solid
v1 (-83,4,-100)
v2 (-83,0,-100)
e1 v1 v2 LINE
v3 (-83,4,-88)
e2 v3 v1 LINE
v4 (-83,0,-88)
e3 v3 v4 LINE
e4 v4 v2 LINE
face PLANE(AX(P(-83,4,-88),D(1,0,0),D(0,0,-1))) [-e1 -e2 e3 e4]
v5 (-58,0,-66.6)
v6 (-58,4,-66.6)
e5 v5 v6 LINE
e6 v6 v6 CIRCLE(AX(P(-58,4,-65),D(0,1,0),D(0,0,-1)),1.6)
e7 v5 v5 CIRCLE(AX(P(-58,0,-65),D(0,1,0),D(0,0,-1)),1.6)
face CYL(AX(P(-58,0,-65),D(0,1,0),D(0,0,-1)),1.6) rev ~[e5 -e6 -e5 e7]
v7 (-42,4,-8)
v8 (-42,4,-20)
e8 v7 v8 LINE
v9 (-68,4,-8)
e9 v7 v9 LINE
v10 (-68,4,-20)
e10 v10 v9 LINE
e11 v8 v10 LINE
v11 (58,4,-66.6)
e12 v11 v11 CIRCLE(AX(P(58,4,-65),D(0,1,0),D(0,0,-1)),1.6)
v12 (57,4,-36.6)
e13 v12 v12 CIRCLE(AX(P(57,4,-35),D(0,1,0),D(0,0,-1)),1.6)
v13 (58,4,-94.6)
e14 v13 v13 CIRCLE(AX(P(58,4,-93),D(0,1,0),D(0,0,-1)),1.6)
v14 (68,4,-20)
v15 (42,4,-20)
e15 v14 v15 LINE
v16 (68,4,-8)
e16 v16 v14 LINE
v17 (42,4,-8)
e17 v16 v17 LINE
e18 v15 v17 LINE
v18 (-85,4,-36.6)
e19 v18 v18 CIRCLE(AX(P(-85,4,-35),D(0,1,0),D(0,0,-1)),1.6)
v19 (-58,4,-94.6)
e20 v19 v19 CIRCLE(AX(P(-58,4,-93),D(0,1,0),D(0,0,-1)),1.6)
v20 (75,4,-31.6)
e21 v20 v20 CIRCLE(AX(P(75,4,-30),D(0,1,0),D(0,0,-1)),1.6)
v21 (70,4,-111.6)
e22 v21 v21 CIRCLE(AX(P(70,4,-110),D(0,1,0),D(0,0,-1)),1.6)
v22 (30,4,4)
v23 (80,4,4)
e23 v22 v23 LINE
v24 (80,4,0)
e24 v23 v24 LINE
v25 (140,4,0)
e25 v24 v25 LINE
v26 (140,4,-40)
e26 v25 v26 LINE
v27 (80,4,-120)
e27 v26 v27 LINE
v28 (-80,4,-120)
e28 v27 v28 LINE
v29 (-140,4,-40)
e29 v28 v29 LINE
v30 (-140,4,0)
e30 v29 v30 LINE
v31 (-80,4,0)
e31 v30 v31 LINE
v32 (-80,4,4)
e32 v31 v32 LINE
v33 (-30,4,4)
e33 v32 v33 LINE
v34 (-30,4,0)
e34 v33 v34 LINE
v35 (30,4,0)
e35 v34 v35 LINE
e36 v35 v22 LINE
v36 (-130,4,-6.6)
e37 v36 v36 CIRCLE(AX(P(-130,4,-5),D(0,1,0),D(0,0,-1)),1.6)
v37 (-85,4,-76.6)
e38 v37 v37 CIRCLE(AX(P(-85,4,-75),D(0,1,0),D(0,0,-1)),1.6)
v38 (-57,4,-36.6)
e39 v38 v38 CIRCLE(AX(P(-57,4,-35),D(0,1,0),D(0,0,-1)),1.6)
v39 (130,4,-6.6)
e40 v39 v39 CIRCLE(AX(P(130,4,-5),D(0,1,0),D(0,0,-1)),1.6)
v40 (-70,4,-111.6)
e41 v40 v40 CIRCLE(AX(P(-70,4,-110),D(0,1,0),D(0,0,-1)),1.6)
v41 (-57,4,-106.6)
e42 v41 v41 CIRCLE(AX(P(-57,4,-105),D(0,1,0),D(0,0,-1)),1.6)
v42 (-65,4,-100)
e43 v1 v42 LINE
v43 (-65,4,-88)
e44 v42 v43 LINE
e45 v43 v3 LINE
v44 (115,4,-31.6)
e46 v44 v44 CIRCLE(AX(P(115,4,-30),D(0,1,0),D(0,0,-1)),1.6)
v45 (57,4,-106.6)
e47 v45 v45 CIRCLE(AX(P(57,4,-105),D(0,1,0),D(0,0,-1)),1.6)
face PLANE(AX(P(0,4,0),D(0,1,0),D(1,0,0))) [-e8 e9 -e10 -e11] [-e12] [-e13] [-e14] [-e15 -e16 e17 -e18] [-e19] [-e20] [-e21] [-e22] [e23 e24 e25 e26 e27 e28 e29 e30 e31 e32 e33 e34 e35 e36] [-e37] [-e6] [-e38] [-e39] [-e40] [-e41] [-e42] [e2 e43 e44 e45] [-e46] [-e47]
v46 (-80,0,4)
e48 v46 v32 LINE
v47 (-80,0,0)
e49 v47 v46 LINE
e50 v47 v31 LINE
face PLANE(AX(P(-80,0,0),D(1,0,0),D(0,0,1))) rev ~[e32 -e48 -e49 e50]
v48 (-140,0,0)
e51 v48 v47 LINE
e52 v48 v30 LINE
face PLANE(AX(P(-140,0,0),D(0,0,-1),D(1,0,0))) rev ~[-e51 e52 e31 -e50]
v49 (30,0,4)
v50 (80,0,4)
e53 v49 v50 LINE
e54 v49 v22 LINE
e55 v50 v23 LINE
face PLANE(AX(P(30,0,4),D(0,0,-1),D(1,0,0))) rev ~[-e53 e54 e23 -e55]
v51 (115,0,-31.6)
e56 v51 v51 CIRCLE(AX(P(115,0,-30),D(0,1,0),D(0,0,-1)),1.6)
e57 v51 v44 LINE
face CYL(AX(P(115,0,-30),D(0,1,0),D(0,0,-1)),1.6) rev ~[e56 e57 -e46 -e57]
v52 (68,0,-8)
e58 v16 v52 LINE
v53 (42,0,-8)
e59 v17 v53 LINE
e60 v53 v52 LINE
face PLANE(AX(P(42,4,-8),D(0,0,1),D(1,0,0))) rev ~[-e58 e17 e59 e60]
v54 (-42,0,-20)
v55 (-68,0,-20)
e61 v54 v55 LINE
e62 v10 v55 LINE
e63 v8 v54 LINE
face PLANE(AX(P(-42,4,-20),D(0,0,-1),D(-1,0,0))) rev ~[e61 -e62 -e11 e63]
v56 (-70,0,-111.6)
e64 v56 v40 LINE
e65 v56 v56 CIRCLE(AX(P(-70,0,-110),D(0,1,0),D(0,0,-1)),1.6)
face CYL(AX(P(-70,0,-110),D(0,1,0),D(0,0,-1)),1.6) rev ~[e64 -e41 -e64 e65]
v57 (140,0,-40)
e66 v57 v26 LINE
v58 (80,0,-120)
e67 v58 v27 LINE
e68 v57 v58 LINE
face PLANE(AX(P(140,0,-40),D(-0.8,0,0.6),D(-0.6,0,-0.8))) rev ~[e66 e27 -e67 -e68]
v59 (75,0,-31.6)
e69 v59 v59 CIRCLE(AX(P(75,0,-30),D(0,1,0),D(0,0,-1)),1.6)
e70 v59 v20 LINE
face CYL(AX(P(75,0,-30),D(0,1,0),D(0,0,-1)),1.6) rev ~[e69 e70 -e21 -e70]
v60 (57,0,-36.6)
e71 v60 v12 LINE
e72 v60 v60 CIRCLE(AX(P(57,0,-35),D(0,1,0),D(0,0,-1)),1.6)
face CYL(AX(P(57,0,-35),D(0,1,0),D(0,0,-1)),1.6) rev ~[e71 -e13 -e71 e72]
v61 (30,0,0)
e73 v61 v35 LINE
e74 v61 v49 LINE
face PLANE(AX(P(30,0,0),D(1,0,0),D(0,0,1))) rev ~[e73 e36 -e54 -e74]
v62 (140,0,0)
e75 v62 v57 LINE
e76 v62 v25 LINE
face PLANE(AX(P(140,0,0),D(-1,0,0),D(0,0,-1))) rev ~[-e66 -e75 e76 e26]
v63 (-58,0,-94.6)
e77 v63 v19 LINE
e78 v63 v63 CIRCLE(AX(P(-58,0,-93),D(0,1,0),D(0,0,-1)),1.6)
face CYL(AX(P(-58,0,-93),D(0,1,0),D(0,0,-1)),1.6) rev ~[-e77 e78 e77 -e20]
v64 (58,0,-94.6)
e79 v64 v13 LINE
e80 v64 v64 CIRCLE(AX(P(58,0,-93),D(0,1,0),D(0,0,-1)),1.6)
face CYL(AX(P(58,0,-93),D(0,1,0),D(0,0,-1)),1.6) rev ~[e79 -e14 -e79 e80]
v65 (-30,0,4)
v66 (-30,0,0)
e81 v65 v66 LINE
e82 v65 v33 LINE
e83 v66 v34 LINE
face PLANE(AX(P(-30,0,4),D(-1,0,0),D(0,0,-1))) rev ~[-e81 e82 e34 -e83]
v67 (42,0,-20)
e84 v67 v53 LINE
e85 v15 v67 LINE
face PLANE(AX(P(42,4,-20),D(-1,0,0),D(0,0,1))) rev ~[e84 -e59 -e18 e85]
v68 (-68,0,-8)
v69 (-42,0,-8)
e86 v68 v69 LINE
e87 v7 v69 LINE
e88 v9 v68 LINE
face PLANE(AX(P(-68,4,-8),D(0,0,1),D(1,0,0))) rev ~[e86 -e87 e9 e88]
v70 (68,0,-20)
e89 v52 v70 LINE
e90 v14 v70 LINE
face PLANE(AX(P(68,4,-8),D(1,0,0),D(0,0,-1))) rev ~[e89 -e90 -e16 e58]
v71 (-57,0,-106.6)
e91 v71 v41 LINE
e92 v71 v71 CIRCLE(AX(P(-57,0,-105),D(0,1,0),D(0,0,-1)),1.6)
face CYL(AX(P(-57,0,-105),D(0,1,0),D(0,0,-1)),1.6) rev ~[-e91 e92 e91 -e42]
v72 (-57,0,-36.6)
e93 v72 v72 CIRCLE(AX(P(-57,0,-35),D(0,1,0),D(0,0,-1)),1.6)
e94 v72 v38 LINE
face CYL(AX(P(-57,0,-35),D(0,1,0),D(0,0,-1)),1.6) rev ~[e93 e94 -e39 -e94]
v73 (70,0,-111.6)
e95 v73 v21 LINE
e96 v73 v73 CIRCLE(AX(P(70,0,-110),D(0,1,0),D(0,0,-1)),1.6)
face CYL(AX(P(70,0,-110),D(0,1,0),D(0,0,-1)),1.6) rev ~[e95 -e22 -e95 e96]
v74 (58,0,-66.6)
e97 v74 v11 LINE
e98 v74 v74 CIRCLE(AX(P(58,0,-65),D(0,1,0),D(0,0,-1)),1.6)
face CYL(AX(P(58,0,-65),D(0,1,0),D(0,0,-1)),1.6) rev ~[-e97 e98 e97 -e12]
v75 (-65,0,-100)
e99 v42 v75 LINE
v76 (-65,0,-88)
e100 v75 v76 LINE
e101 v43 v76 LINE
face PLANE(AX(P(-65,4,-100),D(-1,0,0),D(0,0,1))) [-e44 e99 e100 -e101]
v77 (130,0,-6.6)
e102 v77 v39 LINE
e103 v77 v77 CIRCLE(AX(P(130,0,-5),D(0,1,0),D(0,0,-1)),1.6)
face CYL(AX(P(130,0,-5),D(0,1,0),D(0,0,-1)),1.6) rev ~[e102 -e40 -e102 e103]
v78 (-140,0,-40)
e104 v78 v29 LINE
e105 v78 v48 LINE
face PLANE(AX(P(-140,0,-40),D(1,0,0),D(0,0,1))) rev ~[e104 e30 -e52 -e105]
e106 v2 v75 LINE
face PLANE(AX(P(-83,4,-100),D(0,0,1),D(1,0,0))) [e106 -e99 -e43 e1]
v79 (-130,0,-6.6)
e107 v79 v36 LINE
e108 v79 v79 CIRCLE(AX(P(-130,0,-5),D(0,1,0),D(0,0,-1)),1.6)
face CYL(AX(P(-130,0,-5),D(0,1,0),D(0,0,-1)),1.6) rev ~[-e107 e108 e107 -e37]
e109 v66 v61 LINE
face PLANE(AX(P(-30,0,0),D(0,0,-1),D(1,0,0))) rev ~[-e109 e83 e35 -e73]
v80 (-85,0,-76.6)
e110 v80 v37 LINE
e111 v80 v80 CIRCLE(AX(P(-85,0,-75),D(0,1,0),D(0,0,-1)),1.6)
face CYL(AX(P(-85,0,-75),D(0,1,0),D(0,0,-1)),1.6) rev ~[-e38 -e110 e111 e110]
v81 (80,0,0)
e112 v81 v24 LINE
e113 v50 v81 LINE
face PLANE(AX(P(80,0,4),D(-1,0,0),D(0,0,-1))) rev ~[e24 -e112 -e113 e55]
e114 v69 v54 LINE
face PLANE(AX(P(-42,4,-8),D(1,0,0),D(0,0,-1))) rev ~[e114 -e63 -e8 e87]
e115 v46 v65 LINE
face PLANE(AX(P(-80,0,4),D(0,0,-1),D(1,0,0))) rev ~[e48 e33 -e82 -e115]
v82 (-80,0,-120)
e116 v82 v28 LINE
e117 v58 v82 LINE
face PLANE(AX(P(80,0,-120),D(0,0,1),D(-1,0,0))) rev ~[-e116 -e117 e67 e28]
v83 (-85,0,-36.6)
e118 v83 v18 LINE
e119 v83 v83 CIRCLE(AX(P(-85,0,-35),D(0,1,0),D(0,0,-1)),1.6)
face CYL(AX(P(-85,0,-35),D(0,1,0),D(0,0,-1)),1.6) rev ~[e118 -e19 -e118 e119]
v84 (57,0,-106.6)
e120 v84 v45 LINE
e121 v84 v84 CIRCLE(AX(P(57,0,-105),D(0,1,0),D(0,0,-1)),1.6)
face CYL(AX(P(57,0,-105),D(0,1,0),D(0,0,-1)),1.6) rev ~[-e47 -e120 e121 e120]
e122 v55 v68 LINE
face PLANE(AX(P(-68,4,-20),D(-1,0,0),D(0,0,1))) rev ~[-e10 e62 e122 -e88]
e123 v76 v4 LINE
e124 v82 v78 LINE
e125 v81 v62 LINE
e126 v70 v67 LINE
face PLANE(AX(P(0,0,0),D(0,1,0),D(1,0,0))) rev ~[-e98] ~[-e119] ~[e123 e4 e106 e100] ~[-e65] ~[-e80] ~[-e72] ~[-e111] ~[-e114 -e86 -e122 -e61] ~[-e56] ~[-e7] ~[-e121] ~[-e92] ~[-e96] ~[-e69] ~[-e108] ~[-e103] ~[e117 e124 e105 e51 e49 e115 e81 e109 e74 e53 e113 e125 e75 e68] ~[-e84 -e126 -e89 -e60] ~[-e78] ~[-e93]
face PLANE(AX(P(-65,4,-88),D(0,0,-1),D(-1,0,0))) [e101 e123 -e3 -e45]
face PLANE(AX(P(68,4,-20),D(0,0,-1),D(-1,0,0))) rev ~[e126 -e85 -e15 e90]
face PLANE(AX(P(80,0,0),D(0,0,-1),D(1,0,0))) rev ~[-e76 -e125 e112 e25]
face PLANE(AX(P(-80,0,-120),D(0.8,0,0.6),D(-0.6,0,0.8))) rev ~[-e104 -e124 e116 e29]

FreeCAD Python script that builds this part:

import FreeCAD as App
import Part
import Sketcher

doc = App.newDocument("Part")
body = doc.addObject("PartDesign::Body", "Body")

# Sketch on XZ plane
sketch1 = body.newObject("Sketcher::SketchObject", "Sketch")
sketch1.AttachmentSupport = (doc.getObject("XZ_Plane"), [""])
sketch1.MapMode = "FlatFace"
sketch1.addGeometry(Part.LineSegment(App.Vector(-140, -40, 0), App.Vector(-140, 0, 0)), False)
sketch1.addGeometry(Part.LineSegment(App.Vector(-140, 0, 0), App.Vector(-80, 0, 0)), False)
sketch1.addGeometry(Part.LineSegment(App.Vector(-80, 0, 0), App.Vector(-80, 4, 0)), False)
sketch1.addGeometry(Part.LineSegment(App.Vector(-80, 4, 0), App.Vector(-30, 4, 0)), False)
sketch1.addGeometry(Part.LineSegment(App.Vector(-30, 4, 0), App.Vector(-30, 0, 0)), False)
sketch1.addGeometry(Part.LineSegment(App.Vector(-30, 0, 0), App.Vector(30, 0, 0)), False)
sketch1.addGeometry(Part.LineSegment(App.Vector(30, 0, 0), App.Vector(30, 4, 0)), False)
sketch1.addGeometry(Part.LineSegment(App.Vector(30, 4, 0), App.Vector(80, 4, 0)), False)
sketch1.addGeometry(Part.LineSegment(App.Vector(80, 4, 0), App.Vector(80, 0, 0)), False)
sketch1.addGeometry(Part.LineSegment(App.Vector(80, 0, 0), App.Vector(140, 0, 0)), False)
sketch1.addGeometry(Part.LineSegment(App.Vector(140, 0, 0), App.Vector(140, -40, 0)), False)
sketch1.addGeometry(Part.LineSegment(App.Vector(140, -40, 0), App.Vector(80, -120, 0)), False)
sketch1.addGeometry(Part.LineSegment(App.Vector(80, -120, 0), App.Vector(-80, -120, 0)), False)
sketch1.addGeometry(Part.LineSegment(App.Vector(-80, -120, 0), App.Vector(-140, -40, 0)), False)
sketch1.addConstraint(Sketcher.Constraint("Coincident", 0, 2, 1, 1))
sketch1.addConstraint(Sketcher.Constraint("Coincident", 1, 2, 2, 1))
sketch1.addConstraint(Sketcher.Constraint("Coincident", 2, 2, 3, 1))
sketch1.addConstraint(Sketcher.Constraint("Coincident", 3, 2, 4, 1))
sketch1.addConstraint(Sketcher.Constraint("Coincident", 4, 2, 5, 1))
sketch1.addConstraint(Sketcher.Constraint("Coincident", 5, 2, 6, 1))
sketch1.addConstraint(Sketcher.Constraint("Coincident", 6, 2, 7, 1))
sketch1.addConstraint(Sketcher.Constraint("Coincident", 7, 2, 8, 1))
sketch1.addConstraint(Sketcher.Constraint("Coincident", 8, 2, 9, 1))
sketch1.addConstraint(Sketcher.Constraint("Coincident", 9, 2, 10, 1))
sketch1.addConstraint(Sketcher.Constraint("Coincident", 10, 2, 11, 1))
sketch1.addConstraint(Sketcher.Constraint("Coincident", 11, 2, 12, 1))
sketch1.addConstraint(Sketcher.Constraint("Coincident", 12, 2, 13, 1))
sketch1.addConstraint(Sketcher.Constraint("Coincident", 13, 2, 0, 1))
sketch1.addConstraint(Sketcher.Constraint("Vertical", 0))
sketch1.addConstraint(Sketcher.Constraint("Horizontal", 1))
sketch1.addConstraint(Sketcher.Constraint("Vertical", 2))
sketch1.addConstraint(Sketcher.Constraint("Horizontal", 3))
sketch1.addConstraint(Sketcher.Constraint("Vertical", 4))
sketch1.addConstraint(Sketcher.Constraint("Horizontal", 5))
sketch1.addConstraint(Sketcher.Constraint("Vertical", 6))
sketch1.addConstraint(Sketcher.Constraint("Horizontal", 7))
sketch1.addConstraint(Sketcher.Constraint("Vertical", 8))
sketch1.addConstraint(Sketcher.Constraint("Horizontal", 9))
sketch1.addConstraint(Sketcher.Constraint("Vertical", 10))
sketch1.addConstraint(Sketcher.Constraint("Horizontal", 12))
sketch1.addConstraint(Sketcher.Constraint("Symmetric", 4, 2, 5, 2, -1, 1))
sketch1.addConstraint(Sketcher.Constraint("Symmetric", 1, 2, 8, 2, -1, 1))
sketch1.addConstraint(Sketcher.Constraint("Symmetric", 0, 2, 9, 2, -2))
sketch1.addConstraint(Sketcher.Constraint("Horizontal", 3, 2, 6, 2))
sketch1.addConstraint(Sketcher.Constraint("Horizontal", 10, 2, 13, 2))
sketch1.addConstraint(Sketcher.Constraint("Vertical", 8, 2, 11, 2))
sketch1.addConstraint(Sketcher.Constraint("Vertical", 2, 2, 12, 2))
sketch1.addConstraint(Sketcher.Constraint("Equal", 1, 5))
sketch1.addConstraint(Sketcher.Constraint("DistanceX", 1, 1, 1, 2, 60.0))
sketch1.addConstraint(Sketcher.Constraint("DistanceX", 3, 1, 3, 2, 50.0))
sketch1.addConstraint(Sketcher.Constraint("DistanceY", 0, 1, 0, 2, 40.0))
sketch1.addConstraint(Sketcher.Constraint("DistanceY", 2, 1, 2, 2, 4.0))
sketch1.addConstraint(Sketcher.Constraint("DistanceY", 11, 2, 10, 2, 80.0))
pad1 = body.newObject("PartDesign::Pad", "Pad")
pad1.Profile = sketch1
pad1.Length = 4
pad1.Reversed = True

# Sketch on XZ plane
sketch2 = body.newObject("Sketcher::SketchObject", "Sketch001")
sketch2.AttachmentSupport = (doc.getObject("XZ_Plane"), [""])
sketch2.MapMode = "FlatFace"
sketch2.addGeometry(Part.Circle(App.Vector(57, -105, 0), App.Vector(0, 0, 1), 1.6), False)
sketch2.addGeometry(Part.Circle(App.Vector(-57, -105, 0), App.Vector(0, 0, 1), 1.6), False)
sketch2.addGeometry(Part.Circle(App.Vector(-85, -75, 0), App.Vector(0, 0, 1), 1.6), False)
sketch2.addGeometry(Part.Circle(App.Vector(-85, -35, 0), App.Vector(0, 0, 1), 1.6), False)
sketch2.addGeometry(Part.Circle(App.Vector(75, -30, 0), App.Vector(0, 0, 1), 1.6), False)
sketch2.addGeometry(Part.Circle(App.Vector(115, -30, 0), App.Vector(0, 0, 1), 1.6), False)
sketch2.addGeometry(Part.Circle(App.Vector(-70, -110, 0), App.Vector(0, 0, 1), 1.6), False)
sketch2.addGeometry(Part.Circle(App.Vector(70, -110, 0), App.Vector(0, 0, 1), 1.6), False)
sketch2.addGeometry(Part.Circle(App.Vector(-130, -5, 0), App.Vector(0, 0, 1), 1.6), False)
sketch2.addGeometry(Part.Circle(App.Vector(130, -5, 0), App.Vector(0, 0, 1), 1.6), False)
sketch2.addGeometry(Part.Circle(App.Vector(-57, -35, 0), App.Vector(0, 0, 1), 1.6), False)
sketch2.addGeometry(Part.Circle(App.Vector(57, -35, 0), App.Vector(0, 0, 1), 1.6), False)
sketch2.addGeometry(Part.Circle(App.Vector(-58, -93, 0), App.Vector(0, 0, 1), 1.6), False)
sketch2.addGeometry(Part.Circle(App.Vector(-58, -65, 0), App.Vector(0, 0, 1), 1.6), False)
sketch2.addGeometry(Part.Circle(App.Vector(58, -93, 0), App.Vector(0, 0, 1), 1.6), False)
sketch2.addGeometry(Part.Circle(App.Vector(58, -65, 0), App.Vector(0, 0, 1), 1.6), False)
sketch2.addConstraint(Sketcher.Constraint("Equal", 0, 1))
sketch2.addConstraint(Sketcher.Constraint("Equal", 1, 2))
sketch2.addConstraint(Sketcher.Constraint("Equal", 2, 3))
sketch2.addConstraint(Sketcher.Constraint("Equal", 3, 4))
sketch2.addConstraint(Sketcher.Constraint("Equal", 4, 5))
sketch2.addConstraint(Sketcher.Constraint("Equal", 5, 6))
sketch2.addConstraint(Sketcher.Constraint("Equal", 6, 7))
sketch2.addConstraint(Sketcher.Constraint("Equal", 7, 8))
sketch2.addConstraint(Sketcher.Constraint("Equal", 8, 9))
sketch2.addConstraint(Sketcher.Constraint("Equal", 9, 10))
sketch2.addConstraint(Sketcher.Constraint("Equal", 10, 11))
sketch2.addConstraint(Sketcher.Constraint("Equal", 11, 12))
sketch2.addConstraint(Sketcher.Constraint("Equal", 12, 13))
sketch2.addConstraint(Sketcher.Constraint("Equal", 13, 14))
sketch2.addConstraint(Sketcher.Constraint("Equal", 14, 15))
sketch2.addConstraint(Sketcher.Constraint("Symmetric", 0, 3, 1, 3, -2))
sketch2.addConstraint(Sketcher.Constraint("Symmetric", 6, 3, 7, 3, -2))
sketch2.addConstraint(Sketcher.Constraint("Symmetric", 8, 3, 9, 3, -2))
sketch2.addConstraint(Sketcher.Constraint("Symmetric", 10, 3, 11, 3, -2))
sketch2.addConstraint(Sketcher.Constraint("Symmetric", 12, 3, 14, 3, -2))
sketch2.addConstraint(Sketcher.Constraint("Symmetric", 13, 3, 15, 3, -2))
sketch2.addConstraint(Sketcher.Constraint("Horizontal", 4, 3, 5, 3))
sketch2.addConstraint(Sketcher.Constraint("Horizontal", 3, 3, 10, 3))
sketch2.addConstraint(Sketcher.Constraint("Vertical", 2, 3, 3, 3))
sketch2.addConstraint(Sketcher.Constraint("Vertical", 1, 3, 10, 3))
sketch2.addConstraint(Sketcher.Constraint("Vertical", 12, 3, 13, 3))
sketch2.addConstraint(Sketcher.Constraint("Diameter", 0, 3.2))
sketch2.addConstraint(Sketcher.Constraint("DistanceX", -1, 1, 0, 3, 57.0))
sketch2.addConstraint(Sketcher.Constraint("DistanceY", 0, 3, -1, 1, 105.0))
sketch2.addConstraint(Sketcher.Constraint("DistanceX", 2, 3, -1, 1, 85.0))
sketch2.addConstraint(Sketcher.Constraint("DistanceY", 2, 3, -1, 1, 75.0))
sketch2.addConstraint(Sketcher.Constraint("DistanceY", 3, 3, -1, 1, 35.0))
sketch2.addConstraint(Sketcher.Constraint("DistanceX", -1, 1, 4, 3, 75.0))
sketch2.addConstraint(Sketcher.Constraint("DistanceY", 4, 3, -1, 1, 30.0))
sketch2.addConstraint(Sketcher.Constraint("DistanceX", -1, 1, 5, 3, 115.0))
sketch2.addConstraint(Sketcher.Constraint("DistanceX", 6, 3, -1, 1, 70.0))
sketch2.addConstraint(Sketcher.Constraint("DistanceY", 6, 3, -1, 1, 110.0))
sketch2.addConstraint(Sketcher.Constraint("DistanceX", 8, 3, -1, 1, 130.0))
sketch2.addConstraint(Sketcher.Constraint("DistanceY", 8, 3, -1, 1, 5.0))
sketch2.addConstraint(Sketcher.Constraint("DistanceX", 12, 3, -1, 1, 58.0))
sketch2.addConstraint(Sketcher.Constraint("DistanceY", 12, 3, -1, 1, 93.0))
sketch2.addConstraint(Sketcher.Constraint("DistanceY", 13, 3, -1, 1, 65.0))
doc.recompute()
hole = body.newObject("PartDesign::Hole", "Hole")
hole.Profile = sketch2
hole.ThreadType = "None"
hole.Diameter = 3.2
hole.DepthType = "ThroughAll"

# Sketch on XZ plane
sketch3 = body.newObject("Sketcher::SketchObject", "Sketch002")
sketch3.AttachmentSupport = (doc.getObject("XZ_Plane"), [""])
sketch3.MapMode = "FlatFace"
sketch3.AttachmentOffset = App.Placement(App.Vector(0, 0, -4), App.Rotation())
sketch3.addGeometry(Part.LineSegment(App.Vector(-68, -8, 0), App.Vector(-42, -8, 0)), False)
sketch3.addGeometry(Part.LineSegment(App.Vector(-42, -8, 0), App.Vector(-42, -20, 0)), False)
sketch3.addGeometry(Part.LineSegment(App.Vector(-42, -20, 0), App.Vector(-68, -20, 0)), False)
sketch3.addGeometry(Part.LineSegment(App.Vector(-68, -20, 0), App.Vector(-68, -8, 0)), False)
sketch3.addGeometry(Part.LineSegment(App.Vector(42, -8, 0), App.Vector(68, -8, 0)), False)
sketch3.addGeometry(Part.LineSegment(App.Vector(68, -8, 0), App.Vector(68, -20, 0)), False)
sketch3.addGeometry(Part.LineSegment(App.Vector(68, -20, 0), App.Vector(42, -20, 0)), False)
sketch3.addGeometry(Part.LineSegment(App.Vector(42, -20, 0), App.Vector(42, -8, 0)), False)
sketch3.addGeometry(Part.LineSegment(App.Vector(-65, -100, 0), App.Vector(-83, -100, 0)), False)
sketch3.addGeometry(Part.LineSegment(App.Vector(-83, -100, 0), App.Vector(-83, -88, 0)), False)
sketch3.addGeometry(Part.LineSegment(App.Vector(-83, -88, 0), App.Vector(-65, -88, 0)), False)
sketch3.addGeometry(Part.LineSegment(App.Vector(-65, -88, 0), App.Vector(-65, -100, 0)), False)
sketch3.addConstraint(Sketcher.Constraint("Coincident", 0, 2, 1, 1))
sketch3.addConstraint(Sketcher.Constraint("Coincident", 1, 2, 2, 1))
sketch3.addConstraint(Sketcher.Constraint("Coincident", 2, 2, 3, 1))
sketch3.addConstraint(Sketcher.Constraint("Coincident", 3, 2, 0, 1))
sketch3.addConstraint(Sketcher.Constraint("Coincident", 4, 2, 5, 1))
sketch3.addConstraint(Sketcher.Constraint("Coincident", 5, 2, 6, 1))
sketch3.addConstraint(Sketcher.Constraint("Coincident", 6, 2, 7, 1))
sketch3.addConstraint(Sketcher.Constraint("Coincident", 7, 2, 4, 1))
sketch3.addConstraint(Sketcher.Constraint("Coincident", 8, 2, 9, 1))
sketch3.addConstraint(Sketcher.Constraint("Coincident", 9, 2, 10, 1))
sketch3.addConstraint(Sketcher.Constraint("Coincident", 10, 2, 11, 1))
sketch3.addConstraint(Sketcher.Constraint("Coincident", 11, 2, 8, 1))
sketch3.addConstraint(Sketcher.Constraint("Horizontal", 0))
sketch3.addConstraint(Sketcher.Constraint("Vertical", 1))
sketch3.addConstraint(Sketcher.Constraint("Horizontal", 2))
sketch3.addConstraint(Sketcher.Constraint("Vertical", 3))
sketch3.addConstraint(Sketcher.Constraint("Horizontal", 4))
sketch3.addConstraint(Sketcher.Constraint("Vertical", 5))
sketch3.addConstraint(Sketcher.Constraint("Horizontal", 6))
sketch3.addConstraint(Sketcher.Constraint("Vertical", 7))
sketch3.addConstraint(Sketcher.Constraint("Horizontal", 8))
sketch3.addConstraint(Sketcher.Constraint("Vertical", 9))
sketch3.addConstraint(Sketcher.Constraint("Horizontal", 10))
sketch3.addConstraint(Sketcher.Constraint("Vertical", 11))
sketch3.addConstraint(Sketcher.Constraint("Symmetric", 3, 2, 4, 2, -2))
sketch3.addConstraint(Sketcher.Constraint("Symmetric", 1, 2, 6, 2, -2))
sketch3.addConstraint(Sketcher.Constraint("Equal", 7, 9))
sketch3.addConstraint(Sketcher.Constraint("DistanceX", 0, 1, 0, 2, 26.0))
sketch3.addConstraint(Sketcher.Constraint("DistanceX", 8, 2, 8, 1, 18.0))
sketch3.addConstraint(Sketcher.Constraint("DistanceY", 1, 2, 1, 1, 12.0))
sketch3.addConstraint(Sketcher.Constraint("DistanceY", 9, 2, -1, 1, 88.0))
sketch3.addConstraint(Sketcher.Constraint("DistanceX", 10, 2, -1, 1, 65.0))
sketch3.addConstraint(Sketcher.Constraint("DistanceX", 0, 2, -1, 1, 42.0))
sketch3.addConstraint(Sketcher.Constraint("DistanceY", 0, 2, -1, 1, 8.0))
pocket1 = body.newObject("PartDesign::Pocket", "Pocket")
pocket1.Profile = sketch3
pocket1.Type = "ThroughAll"
pocket1.Reversed = True

doc.recompute()
